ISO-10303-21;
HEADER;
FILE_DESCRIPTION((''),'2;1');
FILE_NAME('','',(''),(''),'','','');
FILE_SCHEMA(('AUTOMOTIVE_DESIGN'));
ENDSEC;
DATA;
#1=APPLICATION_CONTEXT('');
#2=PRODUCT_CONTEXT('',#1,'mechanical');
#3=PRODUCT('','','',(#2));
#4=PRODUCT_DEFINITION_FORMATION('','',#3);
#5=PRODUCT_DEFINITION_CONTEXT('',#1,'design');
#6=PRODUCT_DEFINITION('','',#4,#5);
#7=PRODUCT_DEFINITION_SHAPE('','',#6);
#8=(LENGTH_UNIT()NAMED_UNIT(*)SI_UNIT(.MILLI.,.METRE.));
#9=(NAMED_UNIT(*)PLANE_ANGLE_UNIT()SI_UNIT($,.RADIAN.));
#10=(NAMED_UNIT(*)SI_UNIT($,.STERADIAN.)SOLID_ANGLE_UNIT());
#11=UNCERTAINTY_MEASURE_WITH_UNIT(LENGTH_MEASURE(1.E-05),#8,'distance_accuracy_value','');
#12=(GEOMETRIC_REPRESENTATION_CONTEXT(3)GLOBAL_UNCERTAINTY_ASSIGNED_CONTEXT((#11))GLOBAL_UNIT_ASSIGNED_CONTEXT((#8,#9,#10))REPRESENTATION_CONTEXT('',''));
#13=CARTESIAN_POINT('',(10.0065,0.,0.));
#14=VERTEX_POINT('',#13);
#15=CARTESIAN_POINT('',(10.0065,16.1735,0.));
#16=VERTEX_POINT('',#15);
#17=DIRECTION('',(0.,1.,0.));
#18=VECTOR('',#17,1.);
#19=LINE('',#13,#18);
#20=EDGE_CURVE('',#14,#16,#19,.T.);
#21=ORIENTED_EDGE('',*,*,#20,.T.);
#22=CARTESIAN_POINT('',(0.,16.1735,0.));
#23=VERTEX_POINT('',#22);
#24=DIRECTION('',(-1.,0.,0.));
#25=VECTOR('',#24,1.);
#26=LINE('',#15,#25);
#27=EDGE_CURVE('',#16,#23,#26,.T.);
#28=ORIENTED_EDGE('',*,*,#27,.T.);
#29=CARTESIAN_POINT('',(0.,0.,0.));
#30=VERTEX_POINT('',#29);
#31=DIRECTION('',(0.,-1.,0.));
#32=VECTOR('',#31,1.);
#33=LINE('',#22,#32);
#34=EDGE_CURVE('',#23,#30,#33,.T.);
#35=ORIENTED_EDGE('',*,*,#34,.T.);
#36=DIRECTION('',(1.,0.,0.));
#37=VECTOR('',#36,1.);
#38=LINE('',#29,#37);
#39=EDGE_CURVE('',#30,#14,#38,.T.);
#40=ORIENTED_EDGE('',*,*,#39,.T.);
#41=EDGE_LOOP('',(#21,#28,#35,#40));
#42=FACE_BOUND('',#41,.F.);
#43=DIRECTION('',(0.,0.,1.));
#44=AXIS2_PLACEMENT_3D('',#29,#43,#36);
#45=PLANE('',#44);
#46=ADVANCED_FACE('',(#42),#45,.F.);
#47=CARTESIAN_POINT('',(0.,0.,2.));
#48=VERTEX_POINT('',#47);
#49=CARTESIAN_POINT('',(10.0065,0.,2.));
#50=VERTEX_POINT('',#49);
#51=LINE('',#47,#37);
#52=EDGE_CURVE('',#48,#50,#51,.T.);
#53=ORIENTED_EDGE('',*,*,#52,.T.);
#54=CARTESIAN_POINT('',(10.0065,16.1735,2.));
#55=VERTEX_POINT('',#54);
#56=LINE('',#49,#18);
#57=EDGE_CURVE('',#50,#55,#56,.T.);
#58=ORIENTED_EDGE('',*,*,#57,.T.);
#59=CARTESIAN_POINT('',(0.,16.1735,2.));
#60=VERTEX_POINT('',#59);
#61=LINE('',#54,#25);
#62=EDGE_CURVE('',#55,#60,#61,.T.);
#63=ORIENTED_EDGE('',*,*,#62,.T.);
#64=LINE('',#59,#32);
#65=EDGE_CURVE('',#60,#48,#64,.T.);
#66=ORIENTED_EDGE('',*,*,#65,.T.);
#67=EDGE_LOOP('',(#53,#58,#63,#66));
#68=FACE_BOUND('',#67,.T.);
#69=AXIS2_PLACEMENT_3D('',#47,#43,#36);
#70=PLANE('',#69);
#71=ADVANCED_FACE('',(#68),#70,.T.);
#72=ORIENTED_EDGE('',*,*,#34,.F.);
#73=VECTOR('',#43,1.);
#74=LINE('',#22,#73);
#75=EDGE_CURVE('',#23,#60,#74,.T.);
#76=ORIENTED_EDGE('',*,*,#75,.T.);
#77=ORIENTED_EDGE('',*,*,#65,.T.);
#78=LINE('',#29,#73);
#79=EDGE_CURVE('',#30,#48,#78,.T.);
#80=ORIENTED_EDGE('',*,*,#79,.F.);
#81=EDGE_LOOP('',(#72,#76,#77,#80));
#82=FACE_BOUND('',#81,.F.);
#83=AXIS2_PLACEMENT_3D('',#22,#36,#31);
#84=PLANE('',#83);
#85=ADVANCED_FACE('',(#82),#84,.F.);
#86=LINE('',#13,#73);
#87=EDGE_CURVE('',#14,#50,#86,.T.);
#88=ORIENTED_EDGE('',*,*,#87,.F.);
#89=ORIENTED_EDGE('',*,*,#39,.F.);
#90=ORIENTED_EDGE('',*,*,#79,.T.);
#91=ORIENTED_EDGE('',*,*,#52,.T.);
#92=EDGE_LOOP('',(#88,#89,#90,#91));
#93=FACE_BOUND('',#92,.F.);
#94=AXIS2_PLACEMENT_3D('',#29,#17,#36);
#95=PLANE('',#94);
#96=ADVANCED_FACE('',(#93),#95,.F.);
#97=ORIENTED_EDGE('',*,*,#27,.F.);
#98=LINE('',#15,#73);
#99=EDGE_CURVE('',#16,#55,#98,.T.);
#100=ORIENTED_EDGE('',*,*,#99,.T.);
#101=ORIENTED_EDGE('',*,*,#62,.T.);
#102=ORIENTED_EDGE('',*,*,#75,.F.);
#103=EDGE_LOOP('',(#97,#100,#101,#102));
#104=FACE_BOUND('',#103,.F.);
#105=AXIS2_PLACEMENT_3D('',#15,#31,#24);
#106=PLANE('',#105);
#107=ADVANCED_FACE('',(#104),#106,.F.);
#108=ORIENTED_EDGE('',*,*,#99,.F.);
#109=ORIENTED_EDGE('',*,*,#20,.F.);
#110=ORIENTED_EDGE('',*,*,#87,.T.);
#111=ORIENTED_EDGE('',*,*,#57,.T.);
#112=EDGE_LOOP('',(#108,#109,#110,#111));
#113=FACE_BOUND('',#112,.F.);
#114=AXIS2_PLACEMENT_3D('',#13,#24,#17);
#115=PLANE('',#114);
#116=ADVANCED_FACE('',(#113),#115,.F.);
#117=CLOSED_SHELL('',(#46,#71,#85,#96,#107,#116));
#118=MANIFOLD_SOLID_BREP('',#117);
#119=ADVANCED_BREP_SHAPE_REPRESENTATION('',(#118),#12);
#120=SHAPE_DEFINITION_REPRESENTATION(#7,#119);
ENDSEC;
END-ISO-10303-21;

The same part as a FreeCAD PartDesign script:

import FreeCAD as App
import Part
import Sketcher

doc = App.newDocument("Part")
body = doc.addObject("PartDesign::Body", "Body")

# Sketch on XY plane
sketch1 = body.newObject("Sketcher::SketchObject", "Sketch")
sketch1.AttachmentSupport = (doc.getObject("XY_Plane"), [""])
sketch1.MapMode = "FlatFace"
sketch1.addGeometry([
    Part.LineSegment(App.Vector(0, 16, 0), App.Vector(0, 0, 0)),
    Part.LineSegment(App.Vector(0, 0, 0), App.Vector(10, 0, 0)),
    Part.LineSegment(App.Vector(10, 0, 0), App.Vector(10, 16, 0)),
    Part.LineSegment(App.Vector(10, 16, 0), App.Vector(0, 16, 0)),
], False)
sketch1.addConstraint([
    Sketcher.Constraint("Coincident", 0, 2, 1, 1),
    Sketcher.Constraint("Coincident", 1, 2, 2, 1),
    Sketcher.Constraint("Coincident", 2, 2, 3, 1),
    Sketcher.Constraint("Coincident", 3, 2, 0, 1),
    Sketcher.Constraint("Vertical", 0),
    Sketcher.Constraint("Horizontal", 1),
    Sketcher.Constraint("Vertical", 2),
    Sketcher.Constraint("Horizontal", 3),
    Sketcher.Constraint("Coincident", 0, 2, -1, 1),
    Sketcher.Constraint("DistanceX", 1, 1, 1, 2, 10.0065),
    Sketcher.Constraint("DistanceY", 0, 2, 0, 1, 16.1735),
])
pad1 = body.newObject("PartDesign::Pad", "Pad")
pad1.Profile = sketch1
pad1.Length = 2

doc.recompute()
